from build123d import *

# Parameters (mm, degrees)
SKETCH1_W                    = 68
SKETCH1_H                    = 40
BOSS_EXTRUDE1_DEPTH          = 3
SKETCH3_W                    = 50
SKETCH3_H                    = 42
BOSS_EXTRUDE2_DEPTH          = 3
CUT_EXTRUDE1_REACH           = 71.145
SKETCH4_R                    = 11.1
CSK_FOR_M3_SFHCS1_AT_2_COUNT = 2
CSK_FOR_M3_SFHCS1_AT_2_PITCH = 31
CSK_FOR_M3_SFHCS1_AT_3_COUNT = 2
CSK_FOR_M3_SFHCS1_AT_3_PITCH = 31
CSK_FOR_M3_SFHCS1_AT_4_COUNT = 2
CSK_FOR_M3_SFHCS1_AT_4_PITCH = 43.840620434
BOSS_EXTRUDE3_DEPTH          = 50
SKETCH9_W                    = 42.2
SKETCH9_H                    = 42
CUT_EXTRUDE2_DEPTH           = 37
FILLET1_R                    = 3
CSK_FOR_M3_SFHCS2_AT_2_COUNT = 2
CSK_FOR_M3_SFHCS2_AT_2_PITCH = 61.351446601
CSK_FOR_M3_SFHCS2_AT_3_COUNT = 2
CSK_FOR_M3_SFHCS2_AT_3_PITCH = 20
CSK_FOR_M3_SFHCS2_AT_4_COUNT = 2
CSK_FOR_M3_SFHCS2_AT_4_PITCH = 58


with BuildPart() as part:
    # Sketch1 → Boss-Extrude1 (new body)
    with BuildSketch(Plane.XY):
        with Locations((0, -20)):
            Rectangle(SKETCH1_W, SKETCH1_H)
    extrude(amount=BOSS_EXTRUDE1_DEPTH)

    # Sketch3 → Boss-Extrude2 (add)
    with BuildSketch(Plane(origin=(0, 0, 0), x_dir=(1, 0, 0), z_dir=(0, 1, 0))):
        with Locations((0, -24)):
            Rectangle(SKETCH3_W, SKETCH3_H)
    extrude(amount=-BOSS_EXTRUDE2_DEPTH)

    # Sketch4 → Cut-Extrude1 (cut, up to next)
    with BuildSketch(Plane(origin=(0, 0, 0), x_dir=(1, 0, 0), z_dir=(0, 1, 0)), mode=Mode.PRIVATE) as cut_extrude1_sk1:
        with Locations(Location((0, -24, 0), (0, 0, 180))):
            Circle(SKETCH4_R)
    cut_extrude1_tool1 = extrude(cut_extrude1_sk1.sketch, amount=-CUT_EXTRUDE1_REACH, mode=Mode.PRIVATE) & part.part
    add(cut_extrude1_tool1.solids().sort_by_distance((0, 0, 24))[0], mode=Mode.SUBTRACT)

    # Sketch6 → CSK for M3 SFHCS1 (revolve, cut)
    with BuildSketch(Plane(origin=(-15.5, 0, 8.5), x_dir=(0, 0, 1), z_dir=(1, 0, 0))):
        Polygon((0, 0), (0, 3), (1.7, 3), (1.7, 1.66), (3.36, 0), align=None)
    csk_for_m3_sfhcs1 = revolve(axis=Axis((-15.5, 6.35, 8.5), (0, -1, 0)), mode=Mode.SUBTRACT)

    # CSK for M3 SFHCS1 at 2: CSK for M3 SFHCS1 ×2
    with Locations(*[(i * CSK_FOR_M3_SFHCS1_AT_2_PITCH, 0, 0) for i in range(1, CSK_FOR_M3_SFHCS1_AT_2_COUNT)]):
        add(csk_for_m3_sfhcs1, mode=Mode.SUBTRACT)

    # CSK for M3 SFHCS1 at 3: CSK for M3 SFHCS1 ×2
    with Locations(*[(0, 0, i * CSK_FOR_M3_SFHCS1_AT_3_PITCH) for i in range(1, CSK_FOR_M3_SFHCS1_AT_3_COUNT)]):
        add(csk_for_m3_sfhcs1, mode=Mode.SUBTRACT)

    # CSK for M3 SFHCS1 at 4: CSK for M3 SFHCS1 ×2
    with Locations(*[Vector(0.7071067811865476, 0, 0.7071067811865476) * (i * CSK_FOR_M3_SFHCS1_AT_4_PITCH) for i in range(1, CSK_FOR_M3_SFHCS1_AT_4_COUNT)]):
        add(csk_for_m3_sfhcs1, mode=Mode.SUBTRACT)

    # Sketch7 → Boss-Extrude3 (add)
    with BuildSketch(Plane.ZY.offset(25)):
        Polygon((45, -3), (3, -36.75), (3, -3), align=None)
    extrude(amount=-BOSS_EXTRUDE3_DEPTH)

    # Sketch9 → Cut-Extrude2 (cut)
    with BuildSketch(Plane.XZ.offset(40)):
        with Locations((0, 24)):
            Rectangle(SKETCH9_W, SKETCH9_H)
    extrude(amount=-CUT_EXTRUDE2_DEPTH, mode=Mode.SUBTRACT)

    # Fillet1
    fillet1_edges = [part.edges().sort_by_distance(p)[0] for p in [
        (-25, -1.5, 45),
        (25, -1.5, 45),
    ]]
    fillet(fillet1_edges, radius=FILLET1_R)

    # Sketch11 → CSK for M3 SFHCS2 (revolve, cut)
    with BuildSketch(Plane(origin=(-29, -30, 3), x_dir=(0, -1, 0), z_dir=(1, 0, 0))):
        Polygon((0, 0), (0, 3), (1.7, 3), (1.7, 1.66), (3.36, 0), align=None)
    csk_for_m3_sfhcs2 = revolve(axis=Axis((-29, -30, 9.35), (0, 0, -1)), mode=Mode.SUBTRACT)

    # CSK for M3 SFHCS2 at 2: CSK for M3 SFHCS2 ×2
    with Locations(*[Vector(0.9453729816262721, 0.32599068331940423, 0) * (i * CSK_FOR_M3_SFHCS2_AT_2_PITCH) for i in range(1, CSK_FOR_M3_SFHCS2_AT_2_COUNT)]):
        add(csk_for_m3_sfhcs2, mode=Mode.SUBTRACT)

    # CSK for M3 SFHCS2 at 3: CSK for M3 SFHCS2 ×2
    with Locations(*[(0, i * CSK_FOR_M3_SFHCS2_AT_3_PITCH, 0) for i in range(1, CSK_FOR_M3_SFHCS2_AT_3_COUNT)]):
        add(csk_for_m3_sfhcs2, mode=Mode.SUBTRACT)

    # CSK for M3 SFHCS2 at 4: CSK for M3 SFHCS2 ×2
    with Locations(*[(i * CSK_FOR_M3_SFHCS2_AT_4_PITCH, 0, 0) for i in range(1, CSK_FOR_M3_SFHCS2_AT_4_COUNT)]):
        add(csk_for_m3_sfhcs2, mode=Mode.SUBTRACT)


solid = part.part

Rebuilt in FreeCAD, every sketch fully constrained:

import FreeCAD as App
import Part
import Sketcher
Q = App.Units.Quantity


def edges_at(feature, points):
    """Names of the edges that pass closest to the given points."""
    edges = feature.Shape.Edges
    near = lambda p: min(range(len(edges)), key=lambda i: edges[i].distToShape(Part.Vertex(*p))[0])
    return sorted({f"Edge{near(p) + 1}" for p in points})


def add_polygon(sketch, points):
    """Adds a closed chain of lines whose ends are joined by coincident constraints."""
    first, n = sketch.GeometryCount, len(points)
    for a, b in zip(points, points[1:] + points[:1]):
        sketch.addGeometry(Part.LineSegment(App.Vector(*a, 0), App.Vector(*b, 0)), False)
    for i in range(n):
        sketch.addConstraint(Sketcher.Constraint("Coincident", first + i, 2, first + (i + 1) % n, 1))

doc = App.newDocument("Part")
body = doc.addObject("PartDesign::Body", "Body")

# Sketch on XY plane
sketch1 = doc.addObject("Sketcher::SketchObject", "Sketch")
body.addObject(sketch1)
sketch1.AttachmentSupport = (doc.XY_Plane, [""])
sketch1.MapMode = "FlatFace"
add_polygon(sketch1, [(-34, 0), (-34, -40), (34, -40), (34, 0)])  # lines 0-3
sketch1.addConstraint(Sketcher.Constraint("Vertical", 0))
sketch1.addConstraint(Sketcher.Constraint("Horizontal", 1))
sketch1.addConstraint(Sketcher.Constraint("Vertical", 2))
sketch1.addConstraint(Sketcher.Constraint("Horizontal", 3))
sketch1.addConstraint(Sketcher.Constraint("Symmetric", 2, 2, 3, 2, -1, 1))
sketch1.addConstraint(Sketcher.Constraint("DistanceX", 1, 1, 1, 2, Q("68 mm")))
sketch1.addConstraint(Sketcher.Constraint("DistanceY", 0, 2, 0, 1, Q("40 mm")))
pad1 = doc.addObject("PartDesign::Pad", "Pad")
body.addObject(pad1)
pad1.Profile = sketch1
pad1.Length = 3

# Sketch on XZ plane
sketch2 = doc.addObject("Sketcher::SketchObject", "Sketch001")
body.addObject(sketch2)
sketch2.AttachmentSupport = (doc.XZ_Plane, [""])
sketch2.MapMode = "FlatFace"
add_polygon(sketch2, [(-25, 3), (-25, 45), (25, 45), (25, 3)])  # lines 0-3
sketch2.addConstraint(Sketcher.Constraint("Vertical", 0))
sketch2.addConstraint(Sketcher.Constraint("Horizontal", 1))
sketch2.addConstraint(Sketcher.Constraint("Vertical", 2))
sketch2.addConstraint(Sketcher.Constraint("Horizontal", 3))
sketch2.addConstraint(Sketcher.Constraint("DistanceX", 1, 1, 1, 2, Q("50 mm")))
sketch2.addConstraint(Sketcher.Constraint("DistanceY", 0, 1, 0, 2, Q("42 mm")))
sketch2.addConstraint(Sketcher.Constraint("DistanceX", 0, 2, -1, 1, Q("25 mm")))
sketch2.addConstraint(Sketcher.Constraint("DistanceY", -1, 1, 0, 2, Q("45 mm")))
pad2 = doc.addObject("PartDesign::Pad", "Pad001")
body.addObject(pad2)
pad2.Profile = sketch2
pad2.Length = 3

# Sketch on XZ plane
sketch3 = doc.addObject("Sketcher::SketchObject", "Sketch002")
body.addObject(sketch3)
sketch3.AttachmentSupport = (doc.XZ_Plane, [""])
sketch3.MapMode = "FlatFace"
sketch3.addGeometry(Part.Circle(App.Vector(0, 24, 0), App.Vector(0, 0, 1), 11), False)
sketch3.addConstraint(Sketcher.Constraint("PointOnObject", 0, 3, -2))
sketch3.addConstraint(Sketcher.Constraint("Diameter", 0, Q("22.2 mm")))
sketch3.addConstraint(Sketcher.Constraint("DistanceY", -1, 1, 0, 3, Q("24 mm")))
pocket1 = doc.addObject("PartDesign::Pocket", "Pocket")
body.addObject(pocket1)
pocket1.Profile = sketch3
pocket1.Type = "UpToFirst"
pocket1.Reversed = True

# Sketch on YZ plane
sketch4 = doc.addObject("Sketcher::SketchObject", "Sketch003")
body.addObject(sketch4)
sketch4.AttachmentSupport = (doc.YZ_Plane, [""])
sketch4.MapMode = "FlatFace"
sketch4.AttachmentOffset = App.Placement(App.Vector(0, 0, -15.5), App.Rotation())
add_polygon(sketch4, [(-3, 8.5), (0, 8.5), (0, 11.9), (-1.7, 10.2), (-3, 10.2)])  # lines 0-4
sketch4.addGeometry(Part.LineSegment(App.Vector(0, 8.5, 0), App.Vector(-3, 8.5, 0)), True)  # axis
sketch4.addConstraint(Sketcher.Constraint("Horizontal", 0))
sketch4.addConstraint(Sketcher.Constraint("Vertical", 1))
sketch4.addConstraint(Sketcher.Constraint("Horizontal", 3))
sketch4.addConstraint(Sketcher.Constraint("Vertical", 4))
sketch4.addConstraint(Sketcher.Constraint("Horizontal", 5))
sketch4.addConstraint(Sketcher.Constraint("Coincident", 5, 1, 0, 2))
sketch4.addConstraint(Sketcher.Constraint("PointOnObject", 0, 2, -2))
sketch4.addConstraint(Sketcher.Constraint("Vertical", 3, 2, 5, 2))
sketch4.addConstraint(Sketcher.Constraint("DistanceX", 0, 1, 0, 2, Q("3 mm")))
sketch4.addConstraint(Sketcher.Constraint("Angle", 2, Q("-135 deg")))
sketch4.addConstraint(Sketcher.Constraint("DistanceY", 4, 2, 4, 1, Q("1.7 mm")))
sketch4.addConstraint(Sketcher.Constraint("DistanceX", 3, 2, 3, 1, Q("1.34 mm")))
sketch4.addConstraint(Sketcher.Constraint("DistanceY", -1, 1, 0, 2, Q("8.5 mm")))
groove = doc.addObject("PartDesign::Groove", "Groove")
body.addObject(groove)
groove.Profile = sketch4
groove.ReferenceAxis = (sketch4, ["Axis0"])
groove.Angle = 360
doc.recompute()

linearpattern = doc.addObject("PartDesign::LinearPattern", "LinearPattern")
body.addObject(linearpattern)
linearpattern.Originals = [groove]
linearpattern.Direction = (doc.X_Axis, [""])
linearpattern.Mode = "offset"
linearpattern.Offset = 31
linearpattern.Occurrences = 2
body.Tip = linearpattern
doc.recompute()

linearpattern2 = doc.addObject("PartDesign::LinearPattern", "LinearPattern001")
body.addObject(linearpattern2)
linearpattern2.Originals = [groove]
linearpattern2.Direction = (doc.Z_Axis, [""])
linearpattern2.Mode = "offset"
linearpattern2.Offset = 31
linearpattern2.Occurrences = 2
body.Tip = linearpattern2
doc.recompute()

datumline = doc.addObject("PartDesign::Line", "DatumLine")
body.addObject(datumline)
datumline.Placement = App.Placement(App.Vector(0, 0, 0), App.Rotation(App.Vector(0, 0, 1), App.Vector(0.707106781, 0, 0.707106781)))
linearpattern3 = doc.addObject("PartDesign::LinearPattern", "LinearPattern002")
body.addObject(linearpattern3)
linearpattern3.Originals = [groove]
linearpattern3.Direction = (datumline, [""])
linearpattern3.Mode = "offset"
linearpattern3.Offset = 43.84062
linearpattern3.Occurrences = 2
body.Tip = linearpattern3

# Sketch on YZ plane
sketch5 = doc.addObject("Sketcher::SketchObject", "Sketch004")
body.addObject(sketch5)
sketch5.AttachmentSupport = (doc.YZ_Plane, [""])
sketch5.MapMode = "FlatFace"
sketch5.AttachmentOffset = App.Placement(App.Vector(0, 0, -25), App.Rotation())
add_polygon(sketch5, [(-37, 3), (-3, 45), (-3, 3)])  # lines 0-2
sketch5.addConstraint(Sketcher.Constraint("Vertical", 1))
sketch5.addConstraint(Sketcher.Constraint("Horizontal", 2))
sketch5.addConstraint(Sketcher.Constraint("DistanceY", 1, 2, 1, 1, Q("42 mm")))
sketch5.addConstraint(Sketcher.Constraint("DistanceX", 0, 2, -1, 1, Q("3 mm")))
sketch5.addConstraint(Sketcher.Constraint("DistanceY", -1, 1, 0, 2, Q("45 mm")))
sketch5.addConstraint(Sketcher.Constraint("DistanceX", 2, 2, 2, 1, Q("33.75 mm")))
pad3 = doc.addObject("PartDesign::Pad", "Pad002")
body.addObject(pad3)
pad3.Profile = sketch5
pad3.Length = 50

# Sketch on XZ plane
sketch6 = doc.addObject("Sketcher::SketchObject", "Sketch005")
body.addObject(sketch6)
sketch6.AttachmentSupport = (doc.XZ_Plane, [""])
sketch6.MapMode = "FlatFace"
sketch6.AttachmentOffset = App.Placement(App.Vector(0, 0, 40), App.Rotation())
add_polygon(sketch6, [(-21, 45), (-21, 3), (21, 3), (21, 45)])  # lines 0-3
sketch6.addConstraint(Sketcher.Constraint("Vertical", 0))
sketch6.addConstraint(Sketcher.Constraint("Horizontal", 1))
sketch6.addConstraint(Sketcher.Constraint("Vertical", 2))
sketch6.addConstraint(Sketcher.Constraint("Horizontal", 3))
sketch6.addConstraint(Sketcher.Constraint("DistanceY", 0, 2, 0, 1, Q("42 mm")))
sketch6.addConstraint(Sketcher.Constraint("DistanceX", 1, 1, 1, 2, Q("42.2 mm")))
sketch6.addConstraint(Sketcher.Constraint("DistanceY", -1, 1, 0, 2, Q("3 mm")))
sketch6.addConstraint(Sketcher.Constraint("DistanceX", 0, 2, -1, 1, Q("21.1 mm")))
pocket2 = doc.addObject("PartDesign::Pocket", "Pocket001")
body.addObject(pocket2)
pocket2.Profile = sketch6
pocket2.Length = 37
doc.recompute()

fillet = doc.addObject("PartDesign::Fillet", "Fillet")
body.addObject(fillet)
fillet.Base = (pocket2, edges_at(pocket2, [(-25, -1.5, 45), (25, -1.5, 45)]))
fillet.Radius = 3

# Sketch on YZ plane
sketch7 = doc.addObject("Sketcher::SketchObject", "Sketch006")
body.addObject(sketch7)
sketch7.AttachmentSupport = (doc.YZ_Plane, [""])
sketch7.MapMode = "FlatFace"
sketch7.AttachmentOffset = App.Placement(App.Vector(0, 0, -29), App.Rotation())
add_polygon(sketch7, [(-30, 0), (-30, 3), (-33.4, 3), (-31.7, 1.3), (-31.7, 0)])  # lines 0-4
sketch7.addGeometry(Part.LineSegment(App.Vector(-30, 3, 0), App.Vector(-30, 0, 0)), True)  # axis
sketch7.addConstraint(Sketcher.Constraint("Vertical", 0))
sketch7.addConstraint(Sketcher.Constraint("Horizontal", 1))
sketch7.addConstraint(Sketcher.Constraint("Vertical", 3))
sketch7.addConstraint(Sketcher.Constraint("Horizontal", 4))
sketch7.addConstraint(Sketcher.Constraint("Vertical", 5))
sketch7.addConstraint(Sketcher.Constraint("Coincident", 5, 1, 0, 2))
sketch7.addConstraint(Sketcher.Constraint("PointOnObject", 3, 2, -1))
sketch7.addConstraint(Sketcher.Constraint("PointOnObject", 5, 2, -1))
sketch7.addConstraint(Sketcher.Constraint("DistanceY", 0, 1, 0, 2, Q("3 mm")))
sketch7.addConstraint(Sketcher.Constraint("Angle", 2, Q("-45 deg")))
sketch7.addConstraint(Sketcher.Constraint("DistanceX", 4, 1, 4, 2, Q("1.7 mm")))
sketch7.addConstraint(Sketcher.Constraint("DistanceX", 0, 2, -1, 1, Q("30 mm")))
sketch7.addConstraint(Sketcher.Constraint("DistanceX", 1, 2, 1, 1, Q("3.36 mm")))
groove2 = doc.addObject("PartDesign::Groove", "Groove001")
body.addObject(groove2)
groove2.Profile = sketch7
groove2.ReferenceAxis = (sketch7, ["Axis0"])
groove2.Angle = 360
doc.recompute()

datumline2 = doc.addObject("PartDesign::Line", "DatumLine001")
body.addObject(datumline2)
datumline2.Placement = App.Placement(App.Vector(0, 0, 0), App.Rotation(App.Vector(0, 0, 1), App.Vector(0.945372982, 0.325990683, 0)))
linearpattern4 = doc.addObject("PartDesign::LinearPattern", "LinearPattern003")
body.addObject(linearpattern4)
linearpattern4.Originals = [groove2]
linearpattern4.Direction = (datumline2, [""])
linearpattern4.Mode = "offset"
linearpattern4.Offset = 61.351447
linearpattern4.Occurrences = 2
body.Tip = linearpattern4
doc.recompute()

linearpattern5 = doc.addObject("PartDesign::LinearPattern", "LinearPattern004")
body.addObject(linearpattern5)
linearpattern5.Originals = [groove2]
linearpattern5.Direction = (doc.Y_Axis, [""])
linearpattern5.Mode = "offset"
linearpattern5.Offset = 20
linearpattern5.Occurrences = 2
body.Tip = linearpattern5
doc.recompute()

linearpattern6 = doc.addObject("PartDesign::LinearPattern", "LinearPattern005")
body.addObject(linearpattern6)
linearpattern6.Originals = [groove2]
linearpattern6.Direction = (doc.X_Axis, [""])
linearpattern6.Mode = "offset"
linearpattern6.Offset = 58
linearpattern6.Occurrences = 2
body.Tip = linearpattern6

doc.recompute()
